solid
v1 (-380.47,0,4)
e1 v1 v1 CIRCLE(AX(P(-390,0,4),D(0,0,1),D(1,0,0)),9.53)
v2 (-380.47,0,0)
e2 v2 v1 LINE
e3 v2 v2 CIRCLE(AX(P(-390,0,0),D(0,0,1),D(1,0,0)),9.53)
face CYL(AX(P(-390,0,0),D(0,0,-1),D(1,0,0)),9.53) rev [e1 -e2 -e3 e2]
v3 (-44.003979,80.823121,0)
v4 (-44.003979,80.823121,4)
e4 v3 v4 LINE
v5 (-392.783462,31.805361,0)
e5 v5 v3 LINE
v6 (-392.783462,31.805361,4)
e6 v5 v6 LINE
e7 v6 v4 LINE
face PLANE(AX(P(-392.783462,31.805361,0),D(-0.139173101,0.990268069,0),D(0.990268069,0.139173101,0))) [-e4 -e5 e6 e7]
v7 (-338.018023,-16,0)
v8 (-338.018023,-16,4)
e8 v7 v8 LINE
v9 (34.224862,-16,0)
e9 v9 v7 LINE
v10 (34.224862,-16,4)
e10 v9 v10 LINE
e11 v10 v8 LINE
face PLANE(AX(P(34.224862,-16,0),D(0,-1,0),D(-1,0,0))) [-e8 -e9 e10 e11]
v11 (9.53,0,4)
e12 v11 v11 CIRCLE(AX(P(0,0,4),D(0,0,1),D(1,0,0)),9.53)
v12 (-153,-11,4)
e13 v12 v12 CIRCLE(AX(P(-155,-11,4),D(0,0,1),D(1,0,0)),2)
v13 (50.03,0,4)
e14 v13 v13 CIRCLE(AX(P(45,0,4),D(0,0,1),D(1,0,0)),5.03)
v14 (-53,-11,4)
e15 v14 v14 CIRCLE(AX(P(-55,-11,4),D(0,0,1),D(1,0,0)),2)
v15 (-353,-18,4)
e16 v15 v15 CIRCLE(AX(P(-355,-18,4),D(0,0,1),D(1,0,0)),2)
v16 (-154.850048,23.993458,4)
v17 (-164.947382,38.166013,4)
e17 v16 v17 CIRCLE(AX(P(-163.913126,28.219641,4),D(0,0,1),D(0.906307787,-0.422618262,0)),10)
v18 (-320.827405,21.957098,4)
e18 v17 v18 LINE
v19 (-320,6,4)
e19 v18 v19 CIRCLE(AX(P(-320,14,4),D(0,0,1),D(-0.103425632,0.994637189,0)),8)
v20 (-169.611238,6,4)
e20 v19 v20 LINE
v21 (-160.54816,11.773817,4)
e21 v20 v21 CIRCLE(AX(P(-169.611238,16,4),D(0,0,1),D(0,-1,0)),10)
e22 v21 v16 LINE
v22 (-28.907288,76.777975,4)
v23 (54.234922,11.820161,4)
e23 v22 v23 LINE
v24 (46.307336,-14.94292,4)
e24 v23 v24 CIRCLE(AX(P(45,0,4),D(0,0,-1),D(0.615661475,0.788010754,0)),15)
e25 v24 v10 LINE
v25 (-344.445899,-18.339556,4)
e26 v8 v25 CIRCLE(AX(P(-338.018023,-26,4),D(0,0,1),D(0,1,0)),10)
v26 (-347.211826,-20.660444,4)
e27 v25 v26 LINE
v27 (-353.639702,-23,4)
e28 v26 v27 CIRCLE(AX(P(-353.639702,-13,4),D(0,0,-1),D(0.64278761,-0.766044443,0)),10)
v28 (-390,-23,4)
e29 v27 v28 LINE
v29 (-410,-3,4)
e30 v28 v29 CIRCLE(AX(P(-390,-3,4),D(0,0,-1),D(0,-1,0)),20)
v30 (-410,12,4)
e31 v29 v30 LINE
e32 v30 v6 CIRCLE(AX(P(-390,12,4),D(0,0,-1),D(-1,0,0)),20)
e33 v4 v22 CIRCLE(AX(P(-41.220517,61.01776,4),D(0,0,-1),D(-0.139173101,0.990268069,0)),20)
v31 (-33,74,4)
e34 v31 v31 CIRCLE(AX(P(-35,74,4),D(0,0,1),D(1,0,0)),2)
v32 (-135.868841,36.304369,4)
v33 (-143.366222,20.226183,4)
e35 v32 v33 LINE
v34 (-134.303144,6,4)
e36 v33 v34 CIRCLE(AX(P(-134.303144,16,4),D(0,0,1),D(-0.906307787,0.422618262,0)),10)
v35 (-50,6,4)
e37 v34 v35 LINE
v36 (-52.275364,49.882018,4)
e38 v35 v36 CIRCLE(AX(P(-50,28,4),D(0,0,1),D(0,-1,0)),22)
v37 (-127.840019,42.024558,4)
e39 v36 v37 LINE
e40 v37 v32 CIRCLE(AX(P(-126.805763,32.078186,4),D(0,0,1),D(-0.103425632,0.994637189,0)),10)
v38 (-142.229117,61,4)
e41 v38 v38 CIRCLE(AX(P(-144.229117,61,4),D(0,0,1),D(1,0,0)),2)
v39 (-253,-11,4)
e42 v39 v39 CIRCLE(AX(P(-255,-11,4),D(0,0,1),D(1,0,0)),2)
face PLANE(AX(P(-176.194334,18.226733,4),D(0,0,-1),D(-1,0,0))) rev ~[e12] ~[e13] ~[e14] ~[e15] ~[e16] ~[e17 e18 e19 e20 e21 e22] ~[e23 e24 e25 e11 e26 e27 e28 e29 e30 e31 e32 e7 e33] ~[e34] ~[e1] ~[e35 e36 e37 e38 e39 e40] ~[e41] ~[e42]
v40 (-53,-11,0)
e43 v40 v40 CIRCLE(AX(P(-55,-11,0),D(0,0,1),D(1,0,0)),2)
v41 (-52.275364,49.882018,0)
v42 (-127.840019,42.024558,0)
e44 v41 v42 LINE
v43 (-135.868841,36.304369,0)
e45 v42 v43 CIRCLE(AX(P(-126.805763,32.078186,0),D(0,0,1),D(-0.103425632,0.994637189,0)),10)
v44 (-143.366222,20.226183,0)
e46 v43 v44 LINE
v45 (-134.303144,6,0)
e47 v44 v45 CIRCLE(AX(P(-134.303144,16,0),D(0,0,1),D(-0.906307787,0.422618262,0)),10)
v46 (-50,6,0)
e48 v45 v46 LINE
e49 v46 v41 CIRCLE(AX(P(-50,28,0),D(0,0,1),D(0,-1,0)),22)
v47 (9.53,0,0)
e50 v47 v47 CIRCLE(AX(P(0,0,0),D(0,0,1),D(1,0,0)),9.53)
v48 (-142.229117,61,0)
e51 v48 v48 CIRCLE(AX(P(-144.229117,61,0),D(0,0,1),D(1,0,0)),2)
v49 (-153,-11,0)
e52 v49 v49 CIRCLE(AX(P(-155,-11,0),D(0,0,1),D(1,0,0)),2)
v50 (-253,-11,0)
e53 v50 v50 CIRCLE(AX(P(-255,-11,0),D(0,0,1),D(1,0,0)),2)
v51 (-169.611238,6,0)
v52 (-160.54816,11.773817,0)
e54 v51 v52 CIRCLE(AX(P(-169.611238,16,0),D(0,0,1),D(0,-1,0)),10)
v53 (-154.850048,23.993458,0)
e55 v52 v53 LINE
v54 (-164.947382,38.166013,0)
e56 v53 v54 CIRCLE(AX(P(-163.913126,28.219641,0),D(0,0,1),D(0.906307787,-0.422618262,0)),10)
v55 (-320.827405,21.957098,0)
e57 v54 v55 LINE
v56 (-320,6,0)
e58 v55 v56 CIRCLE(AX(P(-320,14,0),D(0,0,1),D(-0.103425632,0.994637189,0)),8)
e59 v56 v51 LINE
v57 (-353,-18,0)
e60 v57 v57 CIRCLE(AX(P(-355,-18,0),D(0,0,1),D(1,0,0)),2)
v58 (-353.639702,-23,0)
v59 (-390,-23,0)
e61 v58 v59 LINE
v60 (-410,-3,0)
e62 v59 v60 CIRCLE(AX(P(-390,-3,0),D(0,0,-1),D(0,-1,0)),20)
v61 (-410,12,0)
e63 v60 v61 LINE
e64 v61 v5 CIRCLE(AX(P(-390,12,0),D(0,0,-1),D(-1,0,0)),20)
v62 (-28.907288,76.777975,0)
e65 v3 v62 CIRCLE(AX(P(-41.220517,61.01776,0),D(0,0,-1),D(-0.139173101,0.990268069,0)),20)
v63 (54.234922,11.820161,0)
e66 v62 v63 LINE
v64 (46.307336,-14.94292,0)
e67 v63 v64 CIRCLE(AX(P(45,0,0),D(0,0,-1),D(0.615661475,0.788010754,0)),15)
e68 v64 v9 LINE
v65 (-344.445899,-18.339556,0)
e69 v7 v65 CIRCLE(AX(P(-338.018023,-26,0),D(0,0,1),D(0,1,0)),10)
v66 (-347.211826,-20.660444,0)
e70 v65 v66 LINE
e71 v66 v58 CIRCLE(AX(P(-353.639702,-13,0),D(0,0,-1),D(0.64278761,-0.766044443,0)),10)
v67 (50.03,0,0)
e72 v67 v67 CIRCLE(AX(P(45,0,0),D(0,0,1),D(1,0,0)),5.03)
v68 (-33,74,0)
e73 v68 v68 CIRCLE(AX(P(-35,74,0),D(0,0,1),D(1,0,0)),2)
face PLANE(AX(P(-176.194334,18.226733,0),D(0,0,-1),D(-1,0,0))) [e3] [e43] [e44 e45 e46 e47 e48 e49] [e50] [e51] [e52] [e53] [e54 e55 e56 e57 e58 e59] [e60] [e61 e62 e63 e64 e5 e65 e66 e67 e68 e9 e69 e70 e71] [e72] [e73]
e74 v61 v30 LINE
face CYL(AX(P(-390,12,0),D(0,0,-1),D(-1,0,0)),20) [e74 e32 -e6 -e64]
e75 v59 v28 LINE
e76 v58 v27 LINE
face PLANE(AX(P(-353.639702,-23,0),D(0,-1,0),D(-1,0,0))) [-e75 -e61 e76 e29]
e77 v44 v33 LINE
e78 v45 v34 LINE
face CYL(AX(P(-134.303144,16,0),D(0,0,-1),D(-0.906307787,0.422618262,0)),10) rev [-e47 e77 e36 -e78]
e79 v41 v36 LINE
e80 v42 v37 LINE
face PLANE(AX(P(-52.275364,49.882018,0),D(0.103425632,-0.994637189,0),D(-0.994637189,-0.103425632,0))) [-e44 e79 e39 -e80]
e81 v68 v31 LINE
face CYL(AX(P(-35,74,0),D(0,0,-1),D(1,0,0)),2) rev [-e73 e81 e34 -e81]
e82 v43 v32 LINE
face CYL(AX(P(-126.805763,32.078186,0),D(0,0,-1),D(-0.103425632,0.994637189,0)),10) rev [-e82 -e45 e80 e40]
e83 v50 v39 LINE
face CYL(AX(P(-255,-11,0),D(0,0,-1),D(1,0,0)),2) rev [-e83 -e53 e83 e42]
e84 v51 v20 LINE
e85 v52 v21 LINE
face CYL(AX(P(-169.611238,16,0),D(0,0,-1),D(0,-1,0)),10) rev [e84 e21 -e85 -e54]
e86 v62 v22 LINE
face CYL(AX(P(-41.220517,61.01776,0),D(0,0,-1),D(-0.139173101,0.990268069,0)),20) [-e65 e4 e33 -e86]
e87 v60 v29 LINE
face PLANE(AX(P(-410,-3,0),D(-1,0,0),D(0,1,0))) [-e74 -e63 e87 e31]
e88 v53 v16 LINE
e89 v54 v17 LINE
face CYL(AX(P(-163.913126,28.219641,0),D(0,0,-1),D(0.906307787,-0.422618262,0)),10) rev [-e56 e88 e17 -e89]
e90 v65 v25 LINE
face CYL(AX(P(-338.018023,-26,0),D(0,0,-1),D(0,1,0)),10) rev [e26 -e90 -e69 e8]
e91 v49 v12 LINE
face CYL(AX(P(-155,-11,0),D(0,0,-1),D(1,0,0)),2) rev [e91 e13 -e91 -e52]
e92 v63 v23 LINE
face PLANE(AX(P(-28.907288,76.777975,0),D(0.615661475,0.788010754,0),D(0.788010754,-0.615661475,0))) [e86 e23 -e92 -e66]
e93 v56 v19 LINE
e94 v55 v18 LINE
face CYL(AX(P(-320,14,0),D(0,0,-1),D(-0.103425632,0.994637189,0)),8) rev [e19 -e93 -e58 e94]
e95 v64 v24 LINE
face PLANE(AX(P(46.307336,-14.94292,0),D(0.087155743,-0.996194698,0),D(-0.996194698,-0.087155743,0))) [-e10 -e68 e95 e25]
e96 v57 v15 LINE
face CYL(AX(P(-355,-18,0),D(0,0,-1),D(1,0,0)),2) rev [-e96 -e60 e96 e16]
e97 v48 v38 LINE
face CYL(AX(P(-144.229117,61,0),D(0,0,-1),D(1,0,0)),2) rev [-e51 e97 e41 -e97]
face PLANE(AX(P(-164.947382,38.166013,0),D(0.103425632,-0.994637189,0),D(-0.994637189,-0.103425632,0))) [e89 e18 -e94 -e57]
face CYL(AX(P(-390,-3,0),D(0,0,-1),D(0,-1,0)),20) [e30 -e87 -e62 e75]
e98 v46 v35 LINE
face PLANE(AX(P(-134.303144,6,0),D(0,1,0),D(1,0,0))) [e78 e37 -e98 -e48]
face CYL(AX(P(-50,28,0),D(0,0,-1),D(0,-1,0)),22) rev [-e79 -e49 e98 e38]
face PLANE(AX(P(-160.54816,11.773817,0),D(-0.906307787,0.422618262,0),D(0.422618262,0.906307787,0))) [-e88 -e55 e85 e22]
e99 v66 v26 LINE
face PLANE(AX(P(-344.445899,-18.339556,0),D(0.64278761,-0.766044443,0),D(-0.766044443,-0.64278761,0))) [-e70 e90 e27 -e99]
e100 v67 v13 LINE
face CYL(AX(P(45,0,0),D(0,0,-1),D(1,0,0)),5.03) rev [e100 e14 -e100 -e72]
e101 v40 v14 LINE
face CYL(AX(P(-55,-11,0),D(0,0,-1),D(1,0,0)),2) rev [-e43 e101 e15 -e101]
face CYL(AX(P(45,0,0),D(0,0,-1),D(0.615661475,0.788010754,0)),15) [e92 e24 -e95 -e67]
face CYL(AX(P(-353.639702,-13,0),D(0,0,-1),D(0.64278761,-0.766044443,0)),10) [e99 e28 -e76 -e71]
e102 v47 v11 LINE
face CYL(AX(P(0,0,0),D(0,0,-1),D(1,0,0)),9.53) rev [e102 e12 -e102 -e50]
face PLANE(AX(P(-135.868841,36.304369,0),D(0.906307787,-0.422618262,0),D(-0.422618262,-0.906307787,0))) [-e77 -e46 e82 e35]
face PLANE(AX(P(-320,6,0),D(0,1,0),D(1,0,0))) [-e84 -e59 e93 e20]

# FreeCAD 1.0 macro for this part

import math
import FreeCAD as App
import Part
import Sketcher

V = App.Vector
Q = App.Units.Quantity

doc = App.newDocument("Part")
body = doc.addObject("PartDesign::Body", "Body")

# Sketch on XY plane
sketch1 = body.newObject("Sketcher::SketchObject", "Sketch")
sketch1.AttachmentSupport = (doc.getObject("XY_Plane"), [""])
sketch1.MapMode = "FlatFace"
sketch1.addGeometry([
    Part.LineSegment(V(-44, 80.8, 0), V(-392.8, 31.8, 0)),  # 0
    Part.ArcOfCircle(Part.Circle(V(-390, 12, 0), V(0, 0, 1), 20), math.radians(98), math.radians(180)),  # 1
    Part.LineSegment(V(-410, 12, 0), V(-410, -3, 0)),  # 2
    Part.ArcOfCircle(Part.Circle(V(-390, -3, 0), V(0, 0, 1), 20), math.radians(180), math.radians(270)),  # 3
    Part.LineSegment(V(-390, -23, 0), V(-353.6, -23, 0)),  # 4
    Part.ArcOfCircle(Part.Circle(V(-353.6, -13, 0), V(0, 0, 1), 10), math.radians(-90), math.radians(-50)),  # 5
    Part.LineSegment(V(-347.2, -20.7, 0), V(-344.4, -18.3, 0)),  # 6
    Part.ArcOfCircle(Part.Circle(V(-338, -26, 0), V(0, 0, 1), 10), math.radians(90), math.radians(130)),  # 7
    Part.LineSegment(V(-338, -16, 0), V(34.2, -16, 0)),  # 8
    Part.LineSegment(V(34.2, -16, 0), V(46.3, -14.9, 0)),  # 9
    Part.ArcOfCircle(Part.Circle(V(45, 0, 0), V(0, 0, 1), 15), math.radians(-85), math.radians(52)),  # 10
    Part.LineSegment(V(54.2, 11.8, 0), V(-28.9, 76.8, 0)),  # 11
    Part.ArcOfCircle(Part.Circle(V(-41.2, 61, 0), V(0, 0, 1), 20), math.radians(52), math.radians(98)),  # 12
    Part.Circle(V(-55, -11, 0), V(0, 0, 1), 2),  # 13
    Part.Circle(V(45, 0, 0), V(0, 0, 1), 5),  # 14
    Part.Circle(V(0, 0, 0), V(0, 0, 1), 9.5),  # 15
    Part.Circle(V(-155, -11, 0), V(0, 0, 1), 2),  # 16
    Part.Circle(V(-255, -11, 0), V(0, 0, 1), 2),  # 17
    Part.Circle(V(-355, -18, 0), V(0, 0, 1), 2),  # 18
    Part.Circle(V(-390, 0, 0), V(0, 0, 1), 9.5),  # 19
    Part.ArcOfCircle(Part.Circle(V(-320, 14, 0), V(0, 0, 1), 8), math.radians(96), math.radians(270)),  # 20
    Part.LineSegment(V(-320.8, 22, 0), V(-164.9, 38.2, 0)),  # 21
    Part.ArcOfCircle(Part.Circle(V(-163.9, 28.2, 0), V(0, 0, 1), 10), math.radians(-25), math.radians(96)),  # 22
    Part.LineSegment(V(-154.9, 24, 0), V(-160.5, 11.8, 0)),  # 23
    Part.ArcOfCircle(Part.Circle(V(-169.6, 16, 0), V(0, 0, 1), 10), math.radians(-90), math.radians(-25)),  # 24
    Part.LineSegment(V(-169.6, 6, 0), V(-320, 6, 0)),  # 25
    Part.ArcOfCircle(Part.Circle(V(-134.3, 16, 0), V(0, 0, 1), 10), math.radians(155), math.radians(270)),  # 26
    Part.LineSegment(V(-143.4, 20.2, 0), V(-135.9, 36.3, 0)),  # 27
    Part.ArcOfCircle(Part.Circle(V(-126.8, 32.1, 0), V(0, 0, 1), 10), math.radians(96), math.radians(155)),  # 28
    Part.LineSegment(V(-127.8, 42, 0), V(-52.3, 49.9, 0)),  # 29
    Part.ArcOfCircle(Part.Circle(V(-50, 28, 0), V(0, 0, 1), 22), math.radians(-90), math.radians(96)),  # 30
    Part.LineSegment(V(-50, 6, 0), V(-134.3, 6, 0)),  # 31
    Part.Circle(V(-35, 74, 0), V(0, 0, 1), 2),  # 32
    Part.Circle(V(-144.2, 61, 0), V(0, 0, 1), 2),  # 33
], False)
sketch1.addConstraint([
    Sketcher.Constraint("Tangent", 0, 2, 1, 1),
    Sketcher.Constraint("Tangent", 1, 2, 2, 1),
    Sketcher.Constraint("Tangent", 2, 2, 3, 1),
    Sketcher.Constraint("Tangent", 3, 2, 4, 1),
    Sketcher.Constraint("Tangent", 4, 2, 5, 1),
    Sketcher.Constraint("Tangent", 5, 2, 6, 1),
    Sketcher.Constraint("Tangent", 6, 2, 7, 2),
    Sketcher.Constraint("Tangent", 7, 1, 8, 1),
    Sketcher.Constraint("Coincident", 8, 2, 9, 1),
    Sketcher.Constraint("Tangent", 9, 2, 10, 1),
    Sketcher.Constraint("Tangent", 10, 2, 11, 1),
    Sketcher.Constraint("Tangent", 11, 2, 12, 1),
    Sketcher.Constraint("Tangent", 12, 2, 0, 1),
    Sketcher.Constraint("Tangent", 20, 1, 21, 1),
    Sketcher.Constraint("Tangent", 21, 2, 22, 2),
    Sketcher.Constraint("Tangent", 22, 1, 23, 1),
    Sketcher.Constraint("Tangent", 23, 2, 24, 2),
    Sketcher.Constraint("Tangent", 24, 1, 25, 1),
    Sketcher.Constraint("Tangent", 25, 2, 20, 2),
    Sketcher.Constraint("Tangent", 26, 1, 27, 1),
    Sketcher.Constraint("Tangent", 27, 2, 28, 2),
    Sketcher.Constraint("Tangent", 28, 1, 29, 1),
    Sketcher.Constraint("Tangent", 29, 2, 30, 2),
    Sketcher.Constraint("Tangent", 30, 1, 31, 1),
    Sketcher.Constraint("Tangent", 31, 2, 26, 2),
    Sketcher.Constraint("Vertical", 2),
    Sketcher.Constraint("Horizontal", 4),
    Sketcher.Constraint("Horizontal", 8),
    Sketcher.Constraint("Horizontal", 25),
    Sketcher.Constraint("Horizontal", 31),
    Sketcher.Constraint("Coincident", 15, 3, -1, 1),
    Sketcher.Constraint("Coincident", 14, 3, 10, 3),
    Sketcher.Constraint("Equal", 1, 3),
    Sketcher.Constraint("Equal", 5, 7),
    Sketcher.Constraint("Equal", 3, 12),
    Sketcher.Constraint("Equal", 13, 16),
    Sketcher.Constraint("Equal", 16, 17),
    Sketcher.Constraint("Equal", 17, 18),
    Sketcher.Constraint("Equal", 15, 19),
    Sketcher.Constraint("Equal", 7, 22),
    Sketcher.Constraint("Equal", 22, 24),
    Sketcher.Constraint("Equal", 24, 26),
    Sketcher.Constraint("Equal", 26, 28),
    Sketcher.Constraint("Equal", 18, 32),
    Sketcher.Constraint("Equal", 32, 33),
    Sketcher.Constraint("PointOnObject", 10, 3, -1),
    Sketcher.Constraint("PointOnObject", 19, 3, -1),
    Sketcher.Constraint("Parallel", 23, 27),
    Sketcher.Constraint("Parallel", 21, 29),
    Sketcher.Constraint("Horizontal", 13, 3, 16, 3),
    Sketcher.Constraint("Horizontal", 16, 3, 17, 3),
    Sketcher.Constraint("Horizontal", 24, 3, 26, 3),
    Sketcher.Constraint("Vertical", 3, 3, 19, 3),
    Sketcher.Constraint("Diameter", 13, 4.0),
    Sketcher.Constraint("Radius", 1, 20.0),
    Sketcher.Constraint("Radius", 5, 10.0),
    Sketcher.Constraint("Radius", 10, 15.0),
    Sketcher.Constraint("Radius", 20, 8.0),
    Sketcher.Constraint("Radius", 30, 22.0),
    Sketcher.Constraint("Diameter", 14, 10.06),
    Sketcher.Constraint("Diameter", 15, 19.06),
    Sketcher.Constraint("DistanceY", 2, 2, 2, 1, 15.0),
    Sketcher.Constraint("Angle", 0, Q("-172 deg")),
    Sketcher.Constraint("Angle", 6, Q("40 deg")),
    Sketcher.Constraint("Angle", 9, Q("5 deg")),
    Sketcher.Constraint("Angle", 11, Q("142 deg")),
    Sketcher.Constraint("Angle", 23, Q("-115 deg")),
    Sketcher.Constraint("DistanceX", 1, 3, -1, 1, 390.0),
    Sketcher.Constraint("DistanceY", -1, 1, 1, 3, 12.0),
    Sketcher.Constraint("DistanceY", 7, 3, -1, 1, 26.0),
    Sketcher.Constraint("DistanceX", -1, 1, 10, 3, 45.0),
    Sketcher.Constraint("DistanceX", 13, 3, -1, 1, 55.0),
    Sketcher.Constraint("DistanceY", 13, 3, -1, 1, 11.0),
    Sketcher.Constraint("DistanceX", 16, 3, -1, 1, 155.0),
    Sketcher.Constraint("DistanceX", 17, 3, -1, 1, 255.0),
    Sketcher.Constraint("DistanceX", 18, 3, -1, 1, 355.0),
    Sketcher.Constraint("DistanceY", 18, 3, -1, 1, 18.0),
    Sketcher.Constraint("DistanceX", 20, 3, -1, 1, 320.0),
    Sketcher.Constraint("DistanceY", -1, 1, 20, 3, 14.0),
    Sketcher.Constraint("DistanceX", 30, 3, -1, 1, 50.0),
    Sketcher.Constraint("DistanceX", 32, 3, -1, 1, 35.0),
    Sketcher.Constraint("DistanceY", -1, 1, 32, 3, 74.0),
    Sketcher.Constraint("DistanceY", -1, 1, 33, 3, 61.0),
    Sketcher.Constraint("DistanceX", 6, 2, -1, 1, 344.445899),
    Sketcher.Constraint("Distance", 23, 13.482882),
    Sketcher.Constraint("Distance", 29, 75.972079),
    Sketcher.Constraint("DistanceX", 25, 2, 25, 1, 150.388762),
    Sketcher.Constraint("DistanceX", 22, 3, 33, 3, 19.684009),
])
pad1 = body.newObject("PartDesign::Pad", "Pad")
pad1.Profile = sketch1
pad1.Length = 4

doc.recompute()
